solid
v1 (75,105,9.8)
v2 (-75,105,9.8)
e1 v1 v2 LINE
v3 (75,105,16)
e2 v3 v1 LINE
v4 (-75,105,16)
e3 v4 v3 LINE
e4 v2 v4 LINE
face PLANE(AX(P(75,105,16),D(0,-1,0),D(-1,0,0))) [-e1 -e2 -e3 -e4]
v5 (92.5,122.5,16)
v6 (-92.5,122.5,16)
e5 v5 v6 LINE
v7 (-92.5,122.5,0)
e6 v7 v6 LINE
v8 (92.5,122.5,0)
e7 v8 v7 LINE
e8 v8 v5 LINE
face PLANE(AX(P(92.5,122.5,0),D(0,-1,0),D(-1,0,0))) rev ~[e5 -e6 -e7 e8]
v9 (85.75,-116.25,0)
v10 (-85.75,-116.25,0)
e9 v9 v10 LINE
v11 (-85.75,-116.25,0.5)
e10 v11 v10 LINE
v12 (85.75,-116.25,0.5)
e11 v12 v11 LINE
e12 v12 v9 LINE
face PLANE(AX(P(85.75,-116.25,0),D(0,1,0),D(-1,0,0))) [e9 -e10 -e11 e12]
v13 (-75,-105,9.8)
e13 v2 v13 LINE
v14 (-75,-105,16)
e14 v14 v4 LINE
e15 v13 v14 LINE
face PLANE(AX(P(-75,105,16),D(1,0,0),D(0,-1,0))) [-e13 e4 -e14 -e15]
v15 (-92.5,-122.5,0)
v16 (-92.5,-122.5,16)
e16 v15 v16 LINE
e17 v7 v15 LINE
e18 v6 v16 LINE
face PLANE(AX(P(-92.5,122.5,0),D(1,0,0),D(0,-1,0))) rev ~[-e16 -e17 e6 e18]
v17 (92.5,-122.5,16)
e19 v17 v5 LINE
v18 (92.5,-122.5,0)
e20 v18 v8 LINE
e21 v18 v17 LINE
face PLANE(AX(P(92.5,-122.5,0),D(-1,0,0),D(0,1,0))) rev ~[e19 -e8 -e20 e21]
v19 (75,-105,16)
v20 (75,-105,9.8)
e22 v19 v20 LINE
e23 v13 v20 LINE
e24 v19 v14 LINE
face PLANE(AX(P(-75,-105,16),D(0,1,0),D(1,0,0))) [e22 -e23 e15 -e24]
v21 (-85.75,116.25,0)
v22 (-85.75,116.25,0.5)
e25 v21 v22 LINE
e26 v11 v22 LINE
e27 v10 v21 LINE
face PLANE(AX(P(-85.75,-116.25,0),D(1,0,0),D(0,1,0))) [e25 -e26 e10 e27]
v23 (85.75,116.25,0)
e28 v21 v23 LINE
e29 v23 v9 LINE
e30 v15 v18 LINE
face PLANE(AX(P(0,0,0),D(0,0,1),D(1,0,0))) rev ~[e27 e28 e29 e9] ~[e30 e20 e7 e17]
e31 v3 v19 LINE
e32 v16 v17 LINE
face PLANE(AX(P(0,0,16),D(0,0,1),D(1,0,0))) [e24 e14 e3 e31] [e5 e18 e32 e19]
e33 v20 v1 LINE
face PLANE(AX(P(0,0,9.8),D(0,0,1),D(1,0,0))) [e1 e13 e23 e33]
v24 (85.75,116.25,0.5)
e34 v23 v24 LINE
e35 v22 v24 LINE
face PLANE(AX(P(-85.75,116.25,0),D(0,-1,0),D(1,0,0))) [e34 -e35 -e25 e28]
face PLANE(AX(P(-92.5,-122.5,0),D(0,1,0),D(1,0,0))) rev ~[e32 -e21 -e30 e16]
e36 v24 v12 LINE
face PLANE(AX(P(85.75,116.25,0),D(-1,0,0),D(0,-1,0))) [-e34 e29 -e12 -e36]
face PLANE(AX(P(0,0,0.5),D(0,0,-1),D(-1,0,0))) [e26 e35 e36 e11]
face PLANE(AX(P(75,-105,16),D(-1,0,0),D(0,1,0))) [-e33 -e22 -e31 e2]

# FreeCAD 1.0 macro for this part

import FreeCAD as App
import Part
import Sketcher

V = App.Vector
Q = App.Units.Quantity

doc = App.newDocument("Part")
body = doc.addObject("PartDesign::Body", "Body")

sketch1 = body.newObject("Sketcher::SketchObject", "Sketch")
sketch1.AttachmentSupport = (doc.getObject("XY_Plane"), [""])
sketch1.MapMode = "FlatFace"
sketch1.addGeometry(Part.LineSegment(V(92, -122, 0), V(92, 122, 0)), False)
sketch1.addGeometry(Part.LineSegment(V(92, 122, 0), V(-92, 122, 0)), False)
sketch1.addGeometry(Part.LineSegment(V(-92, 122, 0), V(-92, -122, 0)), False)
sketch1.addGeometry(Part.LineSegment(V(-92, -122, 0), V(92, -122, 0)), False)
sketch1.addConstraint(Sketcher.Constraint("Coincident", 0, 2, 1, 1))
sketch1.addConstraint(Sketcher.Constraint("Coincident", 1, 2, 2, 1))
sketch1.addConstraint(Sketcher.Constraint("Coincident", 2, 2, 3, 1))
sketch1.addConstraint(Sketcher.Constraint("Coincident", 3, 2, 0, 1))
sketch1.addConstraint(Sketcher.Constraint("Vertical", 0))
sketch1.addConstraint(Sketcher.Constraint("Horizontal", 1))
sketch1.addConstraint(Sketcher.Constraint("Vertical", 2))
sketch1.addConstraint(Sketcher.Constraint("Horizontal", 3))
sketch1.addConstraint(Sketcher.Constraint("Symmetric", 0, 2, 2, 2, -1, 1))
sketch1.addConstraint(Sketcher.Constraint("DistanceX", 1, 2, 1, 1, Q("185 mm")))
sketch1.addConstraint(Sketcher.Constraint("DistanceY", 0, 1, 0, 2, Q("245 mm")))
pad1 = body.newObject("PartDesign::Pad", "Pad")
pad1.Profile = sketch1
pad1.Length = 16

sketch2 = body.newObject("Sketcher::SketchObject", "Sketch001")
sketch2.AttachmentSupport = (doc.getObject("XY_Plane"), [""])
sketch2.MapMode = "FlatFace"
sketch2.addGeometry(Part.LineSegment(V(-86, 116, 0), V(86, 116, 0)), False)
sketch2.addGeometry(Part.LineSegment(V(86, 116, 0), V(86, -116, 0)), False)
sketch2.addGeometry(Part.LineSegment(V(86, -116, 0), V(-86, -116, 0)), False)
sketch2.addGeometry(Part.LineSegment(V(-86, -116, 0), V(-86, 116, 0)), False)
sketch2.addConstraint(Sketcher.Constraint("Coincident", 0, 2, 1, 1))
sketch2.addConstraint(Sketcher.Constraint("Coincident", 1, 2, 2, 1))
sketch2.addConstraint(Sketcher.Constraint("Coincident", 2, 2, 3, 1))
sketch2.addConstraint(Sketcher.Constraint("Coincident", 3, 2, 0, 1))
sketch2.addConstraint(Sketcher.Constraint("Horizontal", 0))
sketch2.addConstraint(Sketcher.Constraint("Vertical", 1))
sketch2.addConstraint(Sketcher.Constraint("Horizontal", 2))
sketch2.addConstraint(Sketcher.Constraint("Vertical", 3))
sketch2.addConstraint(Sketcher.Constraint("Symmetric", 0, 2, 2, 2, -1, 1))
sketch2.addConstraint(Sketcher.Constraint("DistanceX", 0, 1, 0, 2, Q("171.5 mm")))
sketch2.addConstraint(Sketcher.Constraint("DistanceY", 1, 2, 1, 1, Q("232.5 mm")))
pocket1 = body.newObject("PartDesign::Pocket", "Pocket")
pocket1.Profile = sketch2
pocket1.Length = 1
pocket1.Midplane = True

sketch3 = body.newObject("Sketcher::SketchObject", "Sketch002")
sketch3.AttachmentSupport = (doc.getObject("XY_Plane"), [""])
sketch3.MapMode = "FlatFace"
sketch3.AttachmentOffset = App.Placement(V(0, 0, 16), App.Rotation())
sketch3.addGeometry(Part.LineSegment(V(75, -105, 0), V(75, 105, 0)), False)
sketch3.addGeometry(Part.LineSegment(V(75, 105, 0), V(-75, 105, 0)), False)
sketch3.addGeometry(Part.LineSegment(V(-75, 105, 0), V(-75, -105, 0)), False)
sketch3.addGeometry(Part.LineSegment(V(-75, -105, 0), V(75, -105, 0)), False)
sketch3.addConstraint(Sketcher.Constraint("Coincident", 0, 2, 1, 1))
sketch3.addConstraint(Sketcher.Constraint("Coincident", 1, 2, 2, 1))
sketch3.addConstraint(Sketcher.Constraint("Coincident", 2, 2, 3, 1))
sketch3.addConstraint(Sketcher.Constraint("Coincident", 3, 2, 0, 1))
sketch3.addConstraint(Sketcher.Constraint("Vertical", 0))
sketch3.addConstraint(Sketcher.Constraint("Horizontal", 1))
sketch3.addConstraint(Sketcher.Constraint("Vertical", 2))
sketch3.addConstraint(Sketcher.Constraint("Horizontal", 3))
sketch3.addConstraint(Sketcher.Constraint("Symmetric", 0, 2, 2, 2, -1, 1))
sketch3.addConstraint(Sketcher.Constraint("DistanceX", 1, 2, 1, 1, Q("150 mm")))
sketch3.addConstraint(Sketcher.Constraint("DistanceY", 0, 1, 0, 2, Q("210 mm")))
pocket2 = body.newObject("PartDesign::Pocket", "Pocket001")
pocket2.Profile = sketch3
pocket2.Length = 12.4
pocket2.Midplane = True

doc.recompute()
